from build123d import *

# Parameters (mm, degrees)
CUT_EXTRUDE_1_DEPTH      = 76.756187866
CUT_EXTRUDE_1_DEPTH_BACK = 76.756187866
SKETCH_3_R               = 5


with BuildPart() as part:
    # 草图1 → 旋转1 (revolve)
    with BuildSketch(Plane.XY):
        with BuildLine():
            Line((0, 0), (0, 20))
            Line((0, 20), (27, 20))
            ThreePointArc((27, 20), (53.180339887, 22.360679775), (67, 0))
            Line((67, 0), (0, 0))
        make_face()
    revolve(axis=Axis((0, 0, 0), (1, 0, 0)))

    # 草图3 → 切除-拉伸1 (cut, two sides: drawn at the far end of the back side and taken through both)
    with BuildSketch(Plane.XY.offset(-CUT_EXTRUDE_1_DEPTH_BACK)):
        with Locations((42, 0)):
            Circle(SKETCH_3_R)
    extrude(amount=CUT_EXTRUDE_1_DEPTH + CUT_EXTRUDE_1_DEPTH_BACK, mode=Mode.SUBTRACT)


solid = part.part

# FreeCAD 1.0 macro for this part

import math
import FreeCAD as App
import Part
import Sketcher
Q = App.Units.Quantity

doc = App.newDocument("Part")
body = doc.addObject("PartDesign::Body", "Body")

sketch1 = body.newObject("Sketcher::SketchObject", "Sketch")
sketch1.AttachmentSupport = (doc.getObject("XY_Plane"), [""])
sketch1.MapMode = "FlatFace"
sketch1.addGeometry(Part.LineSegment(App.Vector(0, 20, 0), App.Vector(0, 0, 0)), False)
sketch1.addGeometry(Part.LineSegment(App.Vector(0, 0, 0), App.Vector(67, 0, 0)), False)
sketch1.addGeometry(Part.ArcOfCircle(Part.Circle(App.Vector(42, 0, 0), App.Vector(0, 0, 1), 25), math.radians(0), math.radians(127)), False)
sketch1.addGeometry(Part.LineSegment(App.Vector(27, 20, 0), App.Vector(0, 20, 0)), False)
sketch1.addConstraint(Sketcher.Constraint("Coincident", 0, 2, 1, 1))
sketch1.addConstraint(Sketcher.Constraint("Coincident", 1, 2, 2, 1))
sketch1.addConstraint(Sketcher.Constraint("Coincident", 2, 2, 3, 1))
sketch1.addConstraint(Sketcher.Constraint("Coincident", 3, 2, 0, 1))
sketch1.addConstraint(Sketcher.Constraint("Vertical", 0))
sketch1.addConstraint(Sketcher.Constraint("Horizontal", 1))
sketch1.addConstraint(Sketcher.Constraint("Horizontal", 3))
sketch1.addConstraint(Sketcher.Constraint("Coincident", 0, 2, -1, 1))
sketch1.addConstraint(Sketcher.Constraint("PointOnObject", 2, 3, -1))
sketch1.addConstraint(Sketcher.Constraint("Radius", 2, Q("25 mm")))
sketch1.addConstraint(Sketcher.Constraint("DistanceX", 1, 1, 1, 2, Q("67 mm")))
sketch1.addConstraint(Sketcher.Constraint("DistanceX", 3, 2, 3, 1, Q("27 mm")))
revolution = body.newObject("PartDesign::Revolution", "Revolution")
revolution.Profile = sketch1
revolution.ReferenceAxis = (sketch1, ["H_Axis"])
revolution.Angle = 360

sketch2 = body.newObject("Sketcher::SketchObject", "Sketch001")
sketch2.AttachmentSupport = (doc.getObject("XY_Plane"), [""])
sketch2.MapMode = "FlatFace"
sketch2.addGeometry(Part.Circle(App.Vector(42, 0, 0), App.Vector(0, 0, 1), 5), False)
sketch2.addConstraint(Sketcher.Constraint("PointOnObject", 0, 3, -1))
sketch2.addConstraint(Sketcher.Constraint("Diameter", 0, Q("10 mm")))
sketch2.addConstraint(Sketcher.Constraint("DistanceX", -1, 1, 0, 3, Q("42 mm")))
pocket1 = body.newObject("PartDesign::Pocket", "Pocket")
pocket1.Profile = sketch2
pocket1.Type = "ThroughAll"
pocket1.Midplane = True

doc.recompute()
